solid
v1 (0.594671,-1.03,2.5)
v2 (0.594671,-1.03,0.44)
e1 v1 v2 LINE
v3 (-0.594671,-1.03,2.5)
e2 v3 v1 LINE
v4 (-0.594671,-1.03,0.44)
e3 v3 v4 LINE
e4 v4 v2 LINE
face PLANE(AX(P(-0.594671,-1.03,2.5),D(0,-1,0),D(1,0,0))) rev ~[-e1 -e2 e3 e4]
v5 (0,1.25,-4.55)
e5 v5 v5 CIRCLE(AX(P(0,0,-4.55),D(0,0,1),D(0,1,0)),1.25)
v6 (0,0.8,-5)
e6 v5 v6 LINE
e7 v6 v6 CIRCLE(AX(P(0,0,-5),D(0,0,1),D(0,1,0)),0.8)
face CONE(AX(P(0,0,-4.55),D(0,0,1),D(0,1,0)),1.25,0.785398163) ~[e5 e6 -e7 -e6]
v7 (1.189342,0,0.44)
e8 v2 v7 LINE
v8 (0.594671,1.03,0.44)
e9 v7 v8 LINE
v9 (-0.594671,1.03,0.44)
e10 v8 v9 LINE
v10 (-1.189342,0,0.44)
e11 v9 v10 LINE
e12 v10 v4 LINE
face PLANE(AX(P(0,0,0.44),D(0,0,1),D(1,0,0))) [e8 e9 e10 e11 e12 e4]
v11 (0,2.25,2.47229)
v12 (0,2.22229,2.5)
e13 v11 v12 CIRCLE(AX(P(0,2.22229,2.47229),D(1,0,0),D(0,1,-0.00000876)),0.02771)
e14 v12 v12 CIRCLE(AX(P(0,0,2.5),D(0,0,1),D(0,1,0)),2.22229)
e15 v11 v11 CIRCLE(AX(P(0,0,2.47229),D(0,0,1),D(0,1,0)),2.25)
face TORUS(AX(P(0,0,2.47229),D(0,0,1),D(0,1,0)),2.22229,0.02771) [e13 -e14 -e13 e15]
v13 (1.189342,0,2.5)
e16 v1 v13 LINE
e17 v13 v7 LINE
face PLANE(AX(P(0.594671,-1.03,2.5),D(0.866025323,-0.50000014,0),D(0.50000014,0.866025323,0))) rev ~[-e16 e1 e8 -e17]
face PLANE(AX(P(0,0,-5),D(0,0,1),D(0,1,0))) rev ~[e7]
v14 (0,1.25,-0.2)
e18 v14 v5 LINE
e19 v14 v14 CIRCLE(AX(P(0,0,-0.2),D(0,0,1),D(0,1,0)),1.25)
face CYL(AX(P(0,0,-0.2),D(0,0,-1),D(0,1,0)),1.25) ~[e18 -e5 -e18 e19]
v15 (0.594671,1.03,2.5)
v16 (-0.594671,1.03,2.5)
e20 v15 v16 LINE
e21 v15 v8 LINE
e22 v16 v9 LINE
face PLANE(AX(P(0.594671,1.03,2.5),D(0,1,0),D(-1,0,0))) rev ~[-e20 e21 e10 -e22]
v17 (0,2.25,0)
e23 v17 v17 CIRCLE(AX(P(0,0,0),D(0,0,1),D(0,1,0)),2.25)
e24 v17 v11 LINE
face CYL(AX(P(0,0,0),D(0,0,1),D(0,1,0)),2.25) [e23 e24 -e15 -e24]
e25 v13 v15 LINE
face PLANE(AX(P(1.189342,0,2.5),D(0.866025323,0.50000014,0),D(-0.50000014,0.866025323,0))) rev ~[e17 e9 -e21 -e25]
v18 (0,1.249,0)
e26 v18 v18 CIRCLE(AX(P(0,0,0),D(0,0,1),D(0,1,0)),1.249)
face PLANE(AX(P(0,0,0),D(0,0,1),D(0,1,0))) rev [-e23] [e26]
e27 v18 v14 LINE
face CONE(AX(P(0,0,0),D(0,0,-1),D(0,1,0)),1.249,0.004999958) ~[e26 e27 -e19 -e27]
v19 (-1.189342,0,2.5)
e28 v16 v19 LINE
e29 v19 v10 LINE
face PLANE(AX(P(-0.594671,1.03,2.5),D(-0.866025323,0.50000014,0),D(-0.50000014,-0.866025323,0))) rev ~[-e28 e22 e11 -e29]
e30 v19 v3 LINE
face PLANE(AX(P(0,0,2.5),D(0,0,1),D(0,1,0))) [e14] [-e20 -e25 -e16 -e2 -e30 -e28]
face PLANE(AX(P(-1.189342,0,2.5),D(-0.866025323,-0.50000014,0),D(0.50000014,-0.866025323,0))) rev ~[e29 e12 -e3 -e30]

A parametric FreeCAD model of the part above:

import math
import FreeCAD as App
import Part
import Sketcher
Q = App.Units.Quantity


def add_polygon(sketch, points):
    """Adds a closed chain of lines whose ends are joined by coincident constraints."""
    first, n = sketch.GeometryCount, len(points)
    for a, b in zip(points, points[1:] + points[:1]):
        sketch.addGeometry(Part.LineSegment(App.Vector(*a, 0), App.Vector(*b, 0)), False)
    for i in range(n):
        sketch.addConstraint(Sketcher.Constraint("Coincident", first + i, 2, first + (i + 1) % n, 1))

doc = App.newDocument("Part")
body = doc.addObject("PartDesign::Body", "Body")

# Sketch on YZ plane
sketch1 = doc.addObject("Sketcher::SketchObject", "Sketch")
body.addObject(sketch1)
sketch1.AttachmentSupport = (doc.YZ_Plane, [""])
sketch1.MapMode = "FlatFace"
sketch1.addGeometry([
    Part.LineSegment(App.Vector(1.249, 0, 0), App.Vector(2.25, 0, 0)),  # 0
    Part.LineSegment(App.Vector(2.25, 0, 0), App.Vector(2.25, 2.472, 0)),  # 1
    Part.ArcOfCircle(Part.Circle(App.Vector(2.222, 2.472, 0), App.Vector(0, 0, 1), 0.028), math.radians(0), math.radians(90)),  # 2
    Part.LineSegment(App.Vector(2.222, 2.5, 0), App.Vector(0, 2.5, 0)),  # 3
    Part.LineSegment(App.Vector(0, 2.5, 0), App.Vector(0, -5, 0)),  # 4
    Part.LineSegment(App.Vector(0, -5, 0), App.Vector(0.8, -5, 0)),  # 5
    Part.LineSegment(App.Vector(0.8, -5, 0), App.Vector(1.25, -4.55, 0)),  # 6
    Part.LineSegment(App.Vector(1.25, -4.55, 0), App.Vector(1.25, -0.2, 0)),  # 7
    Part.LineSegment(App.Vector(1.25, -0.2, 0), App.Vector(1.249, 0, 0)),  # 8
], False)
sketch1.addConstraint([
    Sketcher.Constraint("Coincident", 0, 2, 1, 1),
    Sketcher.Constraint("Coincident", 1, 2, 2, 1),
    Sketcher.Constraint("Coincident", 2, 2, 3, 1),
    Sketcher.Constraint("Coincident", 3, 2, 4, 1),
    Sketcher.Constraint("Coincident", 4, 2, 5, 1),
    Sketcher.Constraint("Coincident", 5, 2, 6, 1),
    Sketcher.Constraint("Coincident", 6, 2, 7, 1),
    Sketcher.Constraint("Coincident", 7, 2, 8, 1),
    Sketcher.Constraint("Coincident", 8, 2, 0, 1),
    Sketcher.Constraint("Horizontal", 0),
    Sketcher.Constraint("Vertical", 1),
    Sketcher.Constraint("Horizontal", 3),
    Sketcher.Constraint("Vertical", 4),
    Sketcher.Constraint("Horizontal", 5),
    Sketcher.Constraint("Vertical", 7),
    Sketcher.Constraint("PointOnObject", 0, 2, -1),
    Sketcher.Constraint("PointOnObject", 3, 2, -2),
    Sketcher.Constraint("Horizontal", 2, 3, 1, 2),
    Sketcher.Constraint("Angle", 6, Q("45 deg")),
    Sketcher.Constraint("DistanceX", 5, 1, 5, 2, Q("0.8 mm")),
    Sketcher.Constraint("DistanceY", 4, 2, 4, 1, Q("7.5 mm")),
    Sketcher.Constraint("DistanceY", 4, 2, -1, 1, Q("5 mm")),
    Sketcher.Constraint("DistanceX", 6, 2, 0, 2, Q("1 mm")),
    Sketcher.Constraint("DistanceY", 7, 1, 7, 2, Q("4.35 mm")),
    Sketcher.Constraint("DistanceY", 7, 2, -1, 1, Q("0.2 mm")),
    Sketcher.Constraint("DistanceX", 0, 1, 0, 2, Q("1.001 mm")),
    Sketcher.Constraint("Radius", 2, Q("0.02771 mm")),
    Sketcher.Constraint("DistanceX", 3, 2, 3, 1, Q("2.22229 mm")),
])
revolution = doc.addObject("PartDesign::Revolution", "Revolution")
body.addObject(revolution)
revolution.Profile = sketch1
revolution.ReferenceAxis = (sketch1, ["V_Axis"])
revolution.Angle = 360

# Sketch on XY plane
sketch2 = doc.addObject("Sketcher::SketchObject", "Sketch001")
body.addObject(sketch2)
sketch2.AttachmentSupport = (doc.XY_Plane, [""])
sketch2.MapMode = "FlatFace"
sketch2.AttachmentOffset = App.Placement(App.Vector(0, 0, 2.5), App.Rotation())
add_polygon(sketch2, [(1.2, 0), (0.6, 1), (-0.6, 1), (-1.2, 0), (-0.6, -1), (0.6, -1)])  # lines 0-5
sketch2.addConstraint([
    Sketcher.Constraint("Horizontal", 1),
    Sketcher.Constraint("Horizontal", 4),
    Sketcher.Constraint("Symmetric", 0, 2, 3, 2, -1, 1),
    Sketcher.Constraint("Symmetric", 2, 2, 5, 2, -1, 1),
    Sketcher.Constraint("PointOnObject", 2, 2, -1),
    Sketcher.Constraint("Parallel", 2, 5),
    Sketcher.Constraint("Vertical", 1, 2, 3, 2),
    Sketcher.Constraint("Angle", 0, Q("120.000009 deg")),
    Sketcher.Constraint("DistanceY", -1, 1, 0, 2, Q("1.03 mm")),
    Sketcher.Constraint("DistanceX", 1, 2, 1, 1, Q("1.189342 mm")),
])
pocket1 = doc.addObject("PartDesign::Pocket", "Pocket")
body.addObject(pocket1)
pocket1.Profile = sketch2
pocket1.Length = 2.06

doc.recompute()
